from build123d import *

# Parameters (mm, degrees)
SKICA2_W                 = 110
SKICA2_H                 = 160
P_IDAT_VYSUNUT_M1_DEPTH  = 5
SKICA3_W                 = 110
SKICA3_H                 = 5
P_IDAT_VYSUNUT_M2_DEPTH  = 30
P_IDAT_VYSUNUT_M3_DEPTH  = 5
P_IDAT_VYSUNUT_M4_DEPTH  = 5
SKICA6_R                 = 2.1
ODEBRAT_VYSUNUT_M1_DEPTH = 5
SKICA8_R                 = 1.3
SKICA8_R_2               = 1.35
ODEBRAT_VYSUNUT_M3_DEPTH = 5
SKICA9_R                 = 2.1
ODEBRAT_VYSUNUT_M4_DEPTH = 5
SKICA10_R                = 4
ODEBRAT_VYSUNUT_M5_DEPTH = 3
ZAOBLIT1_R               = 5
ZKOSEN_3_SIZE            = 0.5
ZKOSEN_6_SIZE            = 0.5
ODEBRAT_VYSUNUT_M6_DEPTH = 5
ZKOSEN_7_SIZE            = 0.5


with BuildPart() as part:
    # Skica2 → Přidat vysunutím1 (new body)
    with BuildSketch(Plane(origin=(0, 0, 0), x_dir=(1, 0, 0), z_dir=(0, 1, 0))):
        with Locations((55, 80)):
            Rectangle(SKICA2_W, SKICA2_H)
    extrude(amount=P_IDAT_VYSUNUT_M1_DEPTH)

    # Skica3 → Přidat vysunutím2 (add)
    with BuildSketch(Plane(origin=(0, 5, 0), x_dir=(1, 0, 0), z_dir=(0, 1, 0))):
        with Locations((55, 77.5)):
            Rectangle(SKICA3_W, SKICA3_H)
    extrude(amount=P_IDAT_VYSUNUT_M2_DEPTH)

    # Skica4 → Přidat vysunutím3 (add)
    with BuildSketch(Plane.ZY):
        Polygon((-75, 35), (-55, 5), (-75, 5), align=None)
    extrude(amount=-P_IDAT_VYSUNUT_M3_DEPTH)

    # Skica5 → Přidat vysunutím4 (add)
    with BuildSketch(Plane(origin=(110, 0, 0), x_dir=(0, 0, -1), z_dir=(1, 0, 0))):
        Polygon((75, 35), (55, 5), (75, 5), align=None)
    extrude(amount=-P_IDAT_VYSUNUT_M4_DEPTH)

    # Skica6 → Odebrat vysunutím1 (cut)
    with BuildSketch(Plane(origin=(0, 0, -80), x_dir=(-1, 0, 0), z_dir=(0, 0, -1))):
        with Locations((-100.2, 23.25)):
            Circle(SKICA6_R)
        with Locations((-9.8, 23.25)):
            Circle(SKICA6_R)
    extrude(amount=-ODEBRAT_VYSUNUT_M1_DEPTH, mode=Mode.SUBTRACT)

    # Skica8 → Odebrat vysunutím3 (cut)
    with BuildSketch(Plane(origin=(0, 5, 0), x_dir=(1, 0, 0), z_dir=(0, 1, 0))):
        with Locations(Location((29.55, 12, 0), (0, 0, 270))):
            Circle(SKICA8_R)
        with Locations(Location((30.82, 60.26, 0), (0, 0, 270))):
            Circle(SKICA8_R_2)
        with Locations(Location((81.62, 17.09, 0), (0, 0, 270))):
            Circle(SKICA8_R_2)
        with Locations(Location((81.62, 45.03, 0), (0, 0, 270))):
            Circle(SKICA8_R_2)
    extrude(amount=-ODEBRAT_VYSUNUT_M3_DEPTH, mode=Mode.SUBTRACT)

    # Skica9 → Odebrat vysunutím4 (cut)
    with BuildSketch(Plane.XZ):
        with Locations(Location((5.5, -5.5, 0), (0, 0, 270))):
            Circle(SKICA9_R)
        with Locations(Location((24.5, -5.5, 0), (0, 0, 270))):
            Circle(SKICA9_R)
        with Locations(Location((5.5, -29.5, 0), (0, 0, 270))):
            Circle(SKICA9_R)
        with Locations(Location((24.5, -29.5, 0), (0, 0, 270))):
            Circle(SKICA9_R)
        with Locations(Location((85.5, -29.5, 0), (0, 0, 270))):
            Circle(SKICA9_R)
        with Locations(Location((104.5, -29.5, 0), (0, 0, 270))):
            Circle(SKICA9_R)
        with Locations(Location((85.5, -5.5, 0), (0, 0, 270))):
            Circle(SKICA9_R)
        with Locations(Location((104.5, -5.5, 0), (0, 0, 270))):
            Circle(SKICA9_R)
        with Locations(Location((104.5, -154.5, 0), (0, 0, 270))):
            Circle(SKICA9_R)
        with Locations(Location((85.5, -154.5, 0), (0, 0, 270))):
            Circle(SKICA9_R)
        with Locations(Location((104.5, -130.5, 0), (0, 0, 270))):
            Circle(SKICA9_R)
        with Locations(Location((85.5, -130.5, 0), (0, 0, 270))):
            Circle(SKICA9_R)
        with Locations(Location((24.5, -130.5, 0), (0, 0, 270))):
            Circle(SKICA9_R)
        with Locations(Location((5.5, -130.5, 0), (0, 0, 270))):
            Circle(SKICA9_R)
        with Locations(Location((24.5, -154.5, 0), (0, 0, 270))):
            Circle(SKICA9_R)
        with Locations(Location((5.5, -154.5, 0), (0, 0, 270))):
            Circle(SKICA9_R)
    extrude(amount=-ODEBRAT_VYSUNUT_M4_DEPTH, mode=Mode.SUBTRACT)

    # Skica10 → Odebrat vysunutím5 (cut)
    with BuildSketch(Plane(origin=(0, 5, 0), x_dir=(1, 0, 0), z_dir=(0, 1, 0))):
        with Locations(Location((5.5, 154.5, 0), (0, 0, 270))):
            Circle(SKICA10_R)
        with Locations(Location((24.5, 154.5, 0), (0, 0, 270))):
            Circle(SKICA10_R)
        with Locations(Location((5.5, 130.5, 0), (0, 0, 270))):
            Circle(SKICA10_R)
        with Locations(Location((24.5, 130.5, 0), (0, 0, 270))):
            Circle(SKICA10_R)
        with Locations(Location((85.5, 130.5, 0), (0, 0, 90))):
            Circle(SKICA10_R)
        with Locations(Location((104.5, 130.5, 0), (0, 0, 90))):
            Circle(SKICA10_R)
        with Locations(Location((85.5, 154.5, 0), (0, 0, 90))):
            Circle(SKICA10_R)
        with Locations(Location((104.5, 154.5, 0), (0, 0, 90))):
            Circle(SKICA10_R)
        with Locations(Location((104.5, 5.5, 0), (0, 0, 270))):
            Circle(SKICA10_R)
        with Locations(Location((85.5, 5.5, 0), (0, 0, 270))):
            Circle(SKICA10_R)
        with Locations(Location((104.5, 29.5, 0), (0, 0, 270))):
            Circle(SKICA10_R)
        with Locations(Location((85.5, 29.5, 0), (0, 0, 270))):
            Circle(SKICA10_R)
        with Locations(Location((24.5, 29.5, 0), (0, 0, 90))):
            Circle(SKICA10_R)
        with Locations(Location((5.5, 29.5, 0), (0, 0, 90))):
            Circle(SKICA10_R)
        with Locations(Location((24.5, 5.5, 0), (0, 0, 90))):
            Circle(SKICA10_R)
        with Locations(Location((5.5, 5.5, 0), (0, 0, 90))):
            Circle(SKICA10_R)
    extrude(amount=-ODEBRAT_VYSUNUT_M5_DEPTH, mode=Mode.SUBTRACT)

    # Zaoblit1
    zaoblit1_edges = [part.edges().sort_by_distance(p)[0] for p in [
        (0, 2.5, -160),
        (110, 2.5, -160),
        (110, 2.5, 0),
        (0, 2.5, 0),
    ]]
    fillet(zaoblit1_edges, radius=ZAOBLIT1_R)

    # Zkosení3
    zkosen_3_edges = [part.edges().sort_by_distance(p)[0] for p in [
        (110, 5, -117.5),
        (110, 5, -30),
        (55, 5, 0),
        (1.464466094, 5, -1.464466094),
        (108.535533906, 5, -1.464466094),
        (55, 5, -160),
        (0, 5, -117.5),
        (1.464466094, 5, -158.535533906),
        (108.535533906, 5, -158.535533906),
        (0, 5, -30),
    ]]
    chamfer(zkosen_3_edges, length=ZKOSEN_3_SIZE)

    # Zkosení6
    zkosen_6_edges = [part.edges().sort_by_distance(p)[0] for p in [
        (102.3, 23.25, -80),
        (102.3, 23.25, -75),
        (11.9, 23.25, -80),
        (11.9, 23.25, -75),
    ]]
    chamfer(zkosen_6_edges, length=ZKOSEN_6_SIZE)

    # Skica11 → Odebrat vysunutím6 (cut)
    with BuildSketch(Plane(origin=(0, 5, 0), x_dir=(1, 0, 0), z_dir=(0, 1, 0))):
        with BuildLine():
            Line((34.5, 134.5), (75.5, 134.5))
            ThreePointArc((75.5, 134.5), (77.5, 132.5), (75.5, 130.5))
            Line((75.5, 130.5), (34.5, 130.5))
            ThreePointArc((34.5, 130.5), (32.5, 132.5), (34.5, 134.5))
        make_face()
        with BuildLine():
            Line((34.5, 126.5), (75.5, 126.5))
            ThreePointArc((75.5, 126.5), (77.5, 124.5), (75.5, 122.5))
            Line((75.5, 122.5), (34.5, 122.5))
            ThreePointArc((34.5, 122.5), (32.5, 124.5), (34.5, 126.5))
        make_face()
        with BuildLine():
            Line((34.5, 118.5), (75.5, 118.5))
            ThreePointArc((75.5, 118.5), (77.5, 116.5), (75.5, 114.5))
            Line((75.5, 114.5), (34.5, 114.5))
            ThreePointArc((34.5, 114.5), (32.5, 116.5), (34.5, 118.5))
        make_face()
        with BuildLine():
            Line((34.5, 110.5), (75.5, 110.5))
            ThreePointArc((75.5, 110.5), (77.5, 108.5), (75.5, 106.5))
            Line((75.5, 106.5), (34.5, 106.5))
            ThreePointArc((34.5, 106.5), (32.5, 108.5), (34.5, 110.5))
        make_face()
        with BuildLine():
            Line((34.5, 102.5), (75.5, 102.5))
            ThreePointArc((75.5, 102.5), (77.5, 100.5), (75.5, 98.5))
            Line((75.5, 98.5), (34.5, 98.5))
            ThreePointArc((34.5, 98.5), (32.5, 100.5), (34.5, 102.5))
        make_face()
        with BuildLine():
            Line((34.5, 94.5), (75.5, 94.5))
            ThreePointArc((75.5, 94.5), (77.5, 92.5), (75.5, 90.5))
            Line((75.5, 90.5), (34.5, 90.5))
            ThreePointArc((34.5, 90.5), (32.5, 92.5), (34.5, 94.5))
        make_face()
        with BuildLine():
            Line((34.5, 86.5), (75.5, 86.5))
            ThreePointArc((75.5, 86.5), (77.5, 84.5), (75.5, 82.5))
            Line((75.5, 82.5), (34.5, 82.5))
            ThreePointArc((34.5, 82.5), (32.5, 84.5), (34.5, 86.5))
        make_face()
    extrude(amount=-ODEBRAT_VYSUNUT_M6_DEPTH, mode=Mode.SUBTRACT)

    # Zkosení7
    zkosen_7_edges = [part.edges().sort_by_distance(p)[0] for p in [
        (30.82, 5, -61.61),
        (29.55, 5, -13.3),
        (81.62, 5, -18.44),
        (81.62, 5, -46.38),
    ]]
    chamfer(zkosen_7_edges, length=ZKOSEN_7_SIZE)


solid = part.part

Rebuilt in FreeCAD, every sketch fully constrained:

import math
import FreeCAD as App
import Part
import Sketcher

V = App.Vector
Q = App.Units.Quantity


def edges_at(feature, points):
    """Names of the edges that pass closest to the given points."""
    edges = feature.Shape.Edges
    near = lambda p: min(range(len(edges)), key=lambda i: edges[i].distToShape(Part.Vertex(*p))[0])
    return sorted({f"Edge{near(p) + 1}" for p in points})

doc = App.newDocument("Part")
body = doc.addObject("PartDesign::Body", "Body")

# Sketch on XZ plane
sketch1 = doc.addObject("Sketcher::SketchObject", "Sketch")
body.addObject(sketch1)
sketch1.AttachmentSupport = (doc.XZ_Plane, [""])
sketch1.MapMode = "FlatFace"
sketch1.addGeometry([
    Part.LineSegment(V(0, -160, 0), V(0, 0, 0)),
    Part.LineSegment(V(0, 0, 0), V(110, 0, 0)),
    Part.LineSegment(V(110, 0, 0), V(110, -160, 0)),
    Part.LineSegment(V(110, -160, 0), V(0, -160, 0)),
], False)
sketch1.addConstraint([
    Sketcher.Constraint("Coincident", 0, 2, 1, 1),
    Sketcher.Constraint("Coincident", 1, 2, 2, 1),
    Sketcher.Constraint("Coincident", 2, 2, 3, 1),
    Sketcher.Constraint("Coincident", 3, 2, 0, 1),
    Sketcher.Constraint("Vertical", 0),
    Sketcher.Constraint("Horizontal", 1),
    Sketcher.Constraint("Vertical", 2),
    Sketcher.Constraint("Horizontal", 3),
    Sketcher.Constraint("Coincident", 0, 2, -1, 1),
    Sketcher.Constraint("DistanceX", 1, 1, 1, 2, Q("110 mm")),
    Sketcher.Constraint("DistanceY", 0, 1, 0, 2, Q("160 mm")),
])
pad1 = doc.addObject("PartDesign::Pad", "Pad")
body.addObject(pad1)
pad1.Profile = sketch1
pad1.Length = 5
pad1.Reversed = True

# Sketch on XZ plane
sketch2 = doc.addObject("Sketcher::SketchObject", "Sketch001")
body.addObject(sketch2)
sketch2.AttachmentSupport = (doc.XZ_Plane, [""])
sketch2.MapMode = "FlatFace"
sketch2.AttachmentOffset = App.Placement(V(0, 0, -5), App.Rotation())
sketch2.addGeometry([
    Part.LineSegment(V(0, -80, 0), V(0, -75, 0)),
    Part.LineSegment(V(0, -75, 0), V(110, -75, 0)),
    Part.LineSegment(V(110, -75, 0), V(110, -80, 0)),
    Part.LineSegment(V(110, -80, 0), V(0, -80, 0)),
], False)
sketch2.addConstraint([
    Sketcher.Constraint("Coincident", 0, 2, 1, 1),
    Sketcher.Constraint("Coincident", 1, 2, 2, 1),
    Sketcher.Constraint("Coincident", 2, 2, 3, 1),
    Sketcher.Constraint("Coincident", 3, 2, 0, 1),
    Sketcher.Constraint("Vertical", 0),
    Sketcher.Constraint("Horizontal", 1),
    Sketcher.Constraint("Vertical", 2),
    Sketcher.Constraint("Horizontal", 3),
    Sketcher.Constraint("PointOnObject", 0, 2, -2),
    Sketcher.Constraint("DistanceX", 1, 1, 1, 2, Q("110 mm")),
    Sketcher.Constraint("DistanceY", 0, 1, 0, 2, Q("5 mm")),
    Sketcher.Constraint("DistanceY", 0, 2, -1, 1, Q("75 mm")),
])
pad2 = doc.addObject("PartDesign::Pad", "Pad001")
body.addObject(pad2)
pad2.Profile = sketch2
pad2.Length = 30
pad2.Reversed = True

# Sketch on YZ plane
sketch3 = doc.addObject("Sketcher::SketchObject", "Sketch002")
body.addObject(sketch3)
sketch3.AttachmentSupport = (doc.YZ_Plane, [""])
sketch3.MapMode = "FlatFace"
sketch3.addGeometry([
    Part.LineSegment(V(5, -55, 0), V(35, -75, 0)),
    Part.LineSegment(V(35, -75, 0), V(5, -75, 0)),
    Part.LineSegment(V(5, -75, 0), V(5, -55, 0)),
], False)
sketch3.addConstraint([
    Sketcher.Constraint("Coincident", 0, 2, 1, 1),
    Sketcher.Constraint("Coincident", 1, 2, 2, 1),
    Sketcher.Constraint("Coincident", 2, 2, 0, 1),
    Sketcher.Constraint("Horizontal", 1),
    Sketcher.Constraint("Vertical", 2),
    Sketcher.Constraint("DistanceX", 1, 2, 1, 1, Q("30 mm")),
    Sketcher.Constraint("DistanceY", 2, 1, 2, 2, Q("20 mm")),
    Sketcher.Constraint("DistanceX", -1, 1, 0, 2, Q("35 mm")),
    Sketcher.Constraint("DistanceY", 0, 2, -1, 1, Q("75 mm")),
])
pad3 = doc.addObject("PartDesign::Pad", "Pad002")
body.addObject(pad3)
pad3.Profile = sketch3
pad3.Length = 5

# Sketch on YZ plane
sketch4 = doc.addObject("Sketcher::SketchObject", "Sketch003")
body.addObject(sketch4)
sketch4.AttachmentSupport = (doc.YZ_Plane, [""])
sketch4.MapMode = "FlatFace"
sketch4.AttachmentOffset = App.Placement(V(0, 0, 110), App.Rotation())
sketch4.addGeometry([
    Part.LineSegment(V(35, -75, 0), V(5, -55, 0)),
    Part.LineSegment(V(5, -55, 0), V(5, -75, 0)),
    Part.LineSegment(V(5, -75, 0), V(35, -75, 0)),
], False)
sketch4.addConstraint([
    Sketcher.Constraint("Coincident", 0, 2, 1, 1),
    Sketcher.Constraint("Coincident", 1, 2, 2, 1),
    Sketcher.Constraint("Coincident", 2, 2, 0, 1),
    Sketcher.Constraint("Vertical", 1),
    Sketcher.Constraint("Horizontal", 2),
    Sketcher.Constraint("DistanceX", 2, 1, 2, 2, Q("30 mm")),
    Sketcher.Constraint("DistanceY", 1, 2, 1, 1, Q("20 mm")),
    Sketcher.Constraint("DistanceX", -1, 1, 0, 2, Q("5 mm")),
    Sketcher.Constraint("DistanceY", 0, 2, -1, 1, Q("55 mm")),
])
pad4 = doc.addObject("PartDesign::Pad", "Pad003")
body.addObject(pad4)
pad4.Profile = sketch4
pad4.Length = 5
pad4.Reversed = True

# Sketch on XY plane
sketch5 = doc.addObject("Sketcher::SketchObject", "Sketch004")
body.addObject(sketch5)
sketch5.AttachmentSupport = (doc.XY_Plane, [""])
sketch5.MapMode = "FlatFace"
sketch5.AttachmentOffset = App.Placement(V(0, 0, -80), App.Rotation())
sketch5.addGeometry([
    Part.Circle(V(100.2, 23.2, 0), V(0, 0, 1), 2.1),
    Part.Circle(V(9.8, 23.2, 0), V(0, 0, 1), 2.1),
], False)
sketch5.addConstraint([
    Sketcher.Constraint("Equal", 0, 1),
    Sketcher.Constraint("Horizontal", 0, 3, 1, 3),
    Sketcher.Constraint("Diameter", 0, Q("4.2 mm")),
    Sketcher.Constraint("DistanceX", -1, 1, 0, 3, Q("100.2 mm")),
    Sketcher.Constraint("DistanceX", -1, 1, 1, 3, Q("9.8 mm")),
    Sketcher.Constraint("DistanceY", -1, 1, 0, 3, Q("23.25 mm")),
])
pocket1 = doc.addObject("PartDesign::Pocket", "Pocket")
body.addObject(pocket1)
pocket1.Profile = sketch5
pocket1.Length = 5
pocket1.Reversed = True

# Sketch on XZ plane
sketch6 = doc.addObject("Sketcher::SketchObject", "Sketch005")
body.addObject(sketch6)
sketch6.AttachmentSupport = (doc.XZ_Plane, [""])
sketch6.MapMode = "FlatFace"
sketch6.AttachmentOffset = App.Placement(V(0, 0, -5), App.Rotation())
sketch6.addGeometry([
    Part.Circle(V(29.6, -12, 0), V(0, 0, 1), 1.3),
    Part.Circle(V(30.8, -60.3, 0), V(0, 0, 1), 1.4),
    Part.Circle(V(81.6, -17.1, 0), V(0, 0, 1), 1.4),
    Part.Circle(V(81.6, -45, 0), V(0, 0, 1), 1.4),
], False)
sketch6.addConstraint([
    Sketcher.Constraint("Equal", 1, 2),
    Sketcher.Constraint("Equal", 2, 3),
    Sketcher.Constraint("Vertical", 2, 3, 3, 3),
    Sketcher.Constraint("Diameter", 0, Q("2.6 mm")),
    Sketcher.Constraint("Diameter", 1, Q("2.7 mm")),
    Sketcher.Constraint("DistanceY", 0, 3, -1, 1, Q("12 mm")),
    Sketcher.Constraint("DistanceX", 1, 3, 2, 3, Q("50.8 mm")),
    Sketcher.Constraint("DistanceX", -1, 1, 0, 3, Q("29.55 mm")),
    Sketcher.Constraint("DistanceX", -1, 1, 1, 3, Q("30.82 mm")),
    Sketcher.Constraint("DistanceY", 1, 3, -1, 1, Q("60.26 mm")),
    Sketcher.Constraint("DistanceY", 2, 3, -1, 1, Q("17.09 mm")),
    Sketcher.Constraint("DistanceY", 3, 3, -1, 1, Q("45.03 mm")),
])
pocket2 = doc.addObject("PartDesign::Pocket", "Pocket001")
body.addObject(pocket2)
pocket2.Profile = sketch6
pocket2.Length = 5
pocket2.Reversed = True

# Sketch on XZ plane
sketch7 = doc.addObject("Sketcher::SketchObject", "Sketch006")
body.addObject(sketch7)
sketch7.AttachmentSupport = (doc.XZ_Plane, [""])
sketch7.MapMode = "FlatFace"
sketch7.addGeometry([
    Part.Circle(V(5.5, -5.5, 0), V(0, 0, 1), 2.1),  # 0
    Part.Circle(V(24.5, -5.5, 0), V(0, 0, 1), 2.1),  # 1
    Part.Circle(V(5.5, -29.5, 0), V(0, 0, 1), 2.1),  # 2
    Part.Circle(V(24.5, -29.5, 0), V(0, 0, 1), 2.1),  # 3
    Part.Circle(V(85.5, -29.5, 0), V(0, 0, 1), 2.1),  # 4
    Part.Circle(V(104.5, -29.5, 0), V(0, 0, 1), 2.1),  # 5
    Part.Circle(V(85.5, -5.5, 0), V(0, 0, 1), 2.1),  # 6
    Part.Circle(V(104.5, -5.5, 0), V(0, 0, 1), 2.1),  # 7
    Part.Circle(V(104.5, -154.5, 0), V(0, 0, 1), 2.1),  # 8
    Part.Circle(V(85.5, -154.5, 0), V(0, 0, 1), 2.1),  # 9
    Part.Circle(V(104.5, -130.5, 0), V(0, 0, 1), 2.1),  # 10
    Part.Circle(V(85.5, -130.5, 0), V(0, 0, 1), 2.1),  # 11
    Part.Circle(V(24.5, -130.5, 0), V(0, 0, 1), 2.1),  # 12
    Part.Circle(V(5.5, -130.5, 0), V(0, 0, 1), 2.1),  # 13
    Part.Circle(V(24.5, -154.5, 0), V(0, 0, 1), 2.1),  # 14
    Part.Circle(V(5.5, -154.5, 0), V(0, 0, 1), 2.1),  # 15
], False)
sketch7.addConstraint([
    Sketcher.Constraint("Equal", 0, 1),
    Sketcher.Constraint("Equal", 1, 2),
    Sketcher.Constraint("Equal", 2, 3),
    Sketcher.Constraint("Equal", 3, 4),
    Sketcher.Constraint("Equal", 4, 5),
    Sketcher.Constraint("Equal", 5, 6),
    Sketcher.Constraint("Equal", 6, 7),
    Sketcher.Constraint("Equal", 7, 8),
    Sketcher.Constraint("Equal", 8, 9),
    Sketcher.Constraint("Equal", 9, 10),
    Sketcher.Constraint("Equal", 10, 11),
    Sketcher.Constraint("Equal", 11, 12),
    Sketcher.Constraint("Equal", 12, 13),
    Sketcher.Constraint("Equal", 13, 14),
    Sketcher.Constraint("Equal", 14, 15),
    Sketcher.Constraint("Horizontal", 0, 3, 1, 3),
    Sketcher.Constraint("Horizontal", 2, 3, 3, 3),
    Sketcher.Constraint("Horizontal", 3, 3, 4, 3),
    Sketcher.Constraint("Horizontal", 4, 3, 5, 3),
    Sketcher.Constraint("Horizontal", 1, 3, 6, 3),
    Sketcher.Constraint("Horizontal", 6, 3, 7, 3),
    Sketcher.Constraint("Horizontal", 8, 3, 9, 3),
    Sketcher.Constraint("Horizontal", 10, 3, 11, 3),
    Sketcher.Constraint("Horizontal", 11, 3, 12, 3),
    Sketcher.Constraint("Horizontal", 12, 3, 13, 3),
    Sketcher.Constraint("Horizontal", 9, 3, 14, 3),
    Sketcher.Constraint("Horizontal", 14, 3, 15, 3),
    Sketcher.Constraint("Vertical", 0, 3, 2, 3),
    Sketcher.Constraint("Vertical", 1, 3, 3, 3),
    Sketcher.Constraint("Vertical", 4, 3, 6, 3),
    Sketcher.Constraint("Vertical", 5, 3, 7, 3),
    Sketcher.Constraint("Vertical", 7, 3, 8, 3),
    Sketcher.Constraint("Vertical", 6, 3, 9, 3),
    Sketcher.Constraint("Vertical", 8, 3, 10, 3),
    Sketcher.Constraint("Vertical", 9, 3, 11, 3),
    Sketcher.Constraint("Vertical", 3, 3, 12, 3),
    Sketcher.Constraint("Vertical", 2, 3, 13, 3),
    Sketcher.Constraint("Vertical", 12, 3, 14, 3),
    Sketcher.Constraint("Vertical", 13, 3, 15, 3),
    Sketcher.Constraint("Diameter", 0, Q("4.2 mm")),
    Sketcher.Constraint("DistanceX", 0, 3, 1, 3, Q("19 mm")),
    Sketcher.Constraint("DistanceY", 2, 3, 0, 3, Q("24 mm")),
    Sketcher.Constraint("DistanceX", 3, 3, 4, 3, Q("61 mm")),
    Sketcher.Constraint("DistanceX", 4, 3, 5, 3, Q("19 mm")),
    Sketcher.Constraint("DistanceY", 8, 3, 5, 3, Q("125 mm")),
    Sketcher.Constraint("DistanceY", 8, 3, 10, 3, Q("24 mm")),
    Sketcher.Constraint("DistanceX", -1, 1, 0, 3, Q("5.5 mm")),
    Sketcher.Constraint("DistanceY", 0, 3, -1, 1, Q("5.5 mm")),
])
pocket3 = doc.addObject("PartDesign::Pocket", "Pocket002")
body.addObject(pocket3)
pocket3.Profile = sketch7
pocket3.Length = 5

# Sketch on XZ plane
sketch8 = doc.addObject("Sketcher::SketchObject", "Sketch007")
body.addObject(sketch8)
sketch8.AttachmentSupport = (doc.XZ_Plane, [""])
sketch8.MapMode = "FlatFace"
sketch8.AttachmentOffset = App.Placement(V(0, 0, -5), App.Rotation())
sketch8.addGeometry([
    Part.Circle(V(5.5, -154.5, 0), V(0, 0, 1), 4),  # 0
    Part.Circle(V(24.5, -154.5, 0), V(0, 0, 1), 4),  # 1
    Part.Circle(V(5.5, -130.5, 0), V(0, 0, 1), 4),  # 2
    Part.Circle(V(24.5, -130.5, 0), V(0, 0, 1), 4),  # 3
    Part.Circle(V(85.5, -130.5, 0), V(0, 0, 1), 4),  # 4
    Part.Circle(V(104.5, -130.5, 0), V(0, 0, 1), 4),  # 5
    Part.Circle(V(85.5, -154.5, 0), V(0, 0, 1), 4),  # 6
    Part.Circle(V(104.5, -154.5, 0), V(0, 0, 1), 4),  # 7
    Part.Circle(V(104.5, -5.5, 0), V(0, 0, 1), 4),  # 8
    Part.Circle(V(85.5, -5.5, 0), V(0, 0, 1), 4),  # 9
    Part.Circle(V(104.5, -29.5, 0), V(0, 0, 1), 4),  # 10
    Part.Circle(V(85.5, -29.5, 0), V(0, 0, 1), 4),  # 11
    Part.Circle(V(24.5, -29.5, 0), V(0, 0, 1), 4),  # 12
    Part.Circle(V(5.5, -29.5, 0), V(0, 0, 1), 4),  # 13
    Part.Circle(V(24.5, -5.5, 0), V(0, 0, 1), 4),  # 14
    Part.Circle(V(5.5, -5.5, 0), V(0, 0, 1), 4),  # 15
], False)
sketch8.addConstraint([
    Sketcher.Constraint("Equal", 0, 1),
    Sketcher.Constraint("Equal", 1, 2),
    Sketcher.Constraint("Equal", 2, 3),
    Sketcher.Constraint("Equal", 3, 4),
    Sketcher.Constraint("Equal", 4, 5),
    Sketcher.Constraint("Equal", 5, 6),
    Sketcher.Constraint("Equal", 6, 7),
    Sketcher.Constraint("Equal", 7, 8),
    Sketcher.Constraint("Equal", 8, 9),
    Sketcher.Constraint("Equal", 9, 10),
    Sketcher.Constraint("Equal", 10, 11),
    Sketcher.Constraint("Equal", 11, 12),
    Sketcher.Constraint("Equal", 12, 13),
    Sketcher.Constraint("Equal", 13, 14),
    Sketcher.Constraint("Equal", 14, 15),
    Sketcher.Constraint("Horizontal", 0, 3, 1, 3),
    Sketcher.Constraint("Horizontal", 2, 3, 3, 3),
    Sketcher.Constraint("Horizontal", 3, 3, 4, 3),
    Sketcher.Constraint("Horizontal", 4, 3, 5, 3),
    Sketcher.Constraint("Horizontal", 1, 3, 6, 3),
    Sketcher.Constraint("Horizontal", 6, 3, 7, 3),
    Sketcher.Constraint("Horizontal", 8, 3, 9, 3),
    Sketcher.Constraint("Horizontal", 10, 3, 11, 3),
    Sketcher.Constraint("Horizontal", 11, 3, 12, 3),
    Sketcher.Constraint("Horizontal", 12, 3, 13, 3),
    Sketcher.Constraint("Horizontal", 9, 3, 14, 3),
    Sketcher.Constraint("Horizontal", 14, 3, 15, 3),
    Sketcher.Constraint("Vertical", 0, 3, 2, 3),
    Sketcher.Constraint("Vertical", 1, 3, 3, 3),
    Sketcher.Constraint("Vertical", 4, 3, 6, 3),
    Sketcher.Constraint("Vertical", 5, 3, 7, 3),
    Sketcher.Constraint("Vertical", 7, 3, 8, 3),
    Sketcher.Constraint("Vertical", 6, 3, 9, 3),
    Sketcher.Constraint("Vertical", 8, 3, 10, 3),
    Sketcher.Constraint("Vertical", 9, 3, 11, 3),
    Sketcher.Constraint("Vertical", 3, 3, 12, 3),
    Sketcher.Constraint("Vertical", 2, 3, 13, 3),
    Sketcher.Constraint("Vertical", 12, 3, 14, 3),
    Sketcher.Constraint("Vertical", 13, 3, 15, 3),
    Sketcher.Constraint("Diameter", 0, Q("8 mm")),
    Sketcher.Constraint("DistanceX", 0, 3, 1, 3, Q("19 mm")),
    Sketcher.Constraint("DistanceY", 0, 3, 2, 3, Q("24 mm")),
    Sketcher.Constraint("DistanceX", 3, 3, 4, 3, Q("61 mm")),
    Sketcher.Constraint("DistanceX", 4, 3, 5, 3, Q("19 mm")),
    Sketcher.Constraint("DistanceY", 5, 3, 8, 3, Q("125 mm")),
    Sketcher.Constraint("DistanceY", 10, 3, 8, 3, Q("24 mm")),
    Sketcher.Constraint("DistanceX", -1, 1, 0, 3, Q("5.5 mm")),
    Sketcher.Constraint("DistanceY", 0, 3, -1, 1, Q("154.5 mm")),
])
pocket4 = doc.addObject("PartDesign::Pocket", "Pocket003")
body.addObject(pocket4)
pocket4.Profile = sketch8
pocket4.Length = 3
pocket4.Reversed = True
doc.recompute()

fillet = doc.addObject("PartDesign::Fillet", "Fillet")
body.addObject(fillet)
fillet.Base = (pocket4, edges_at(pocket4, [
    (0, 2.5, -160),
    (110, 2.5, -160),
    (110, 2.5, 0),
    (0, 2.5, 0),
]))
fillet.Radius = 5
doc.recompute()

chamfer = doc.addObject("PartDesign::Chamfer", "Chamfer")
body.addObject(chamfer)
chamfer.Base = (fillet, edges_at(fillet, [
    (110, 5, -117.5),
    (110, 5, -30),
    (55, 5, 0),
    (1.464, 5, -1.464),
    (108.536, 5, -1.464),
    (55, 5, -160),
    (0, 5, -117.5),
    (1.464, 5, -158.536),
    (108.536, 5, -158.536),
    (0, 5, -30),
]))
chamfer.Size = 0.5
doc.recompute()

chamfer2 = doc.addObject("PartDesign::Chamfer", "Chamfer001")
body.addObject(chamfer2)
chamfer2.Base = (chamfer, edges_at(chamfer, [
    (102.3, 23.25, -80),
    (102.3, 23.25, -75),
    (11.9, 23.25, -80),
    (11.9, 23.25, -75),
]))
chamfer2.Size = 0.5

# Sketch on XZ plane
sketch9 = doc.addObject("Sketcher::SketchObject", "Sketch008")
body.addObject(sketch9)
sketch9.AttachmentSupport = (doc.XZ_Plane, [""])
sketch9.MapMode = "FlatFace"
sketch9.AttachmentOffset = App.Placement(V(0, 0, -5), App.Rotation())
sketch9.addGeometry([
    Part.LineSegment(V(75.5, -134.5, 0), V(34.5, -134.5, 0)),  # 0
    Part.ArcOfCircle(Part.Circle(V(34.5, -132.5, 0), V(0, 0, 1), 2), math.radians(90), math.radians(270)),  # 1
    Part.LineSegment(V(34.5, -130.5, 0), V(75.5, -130.5, 0)),  # 2
    Part.ArcOfCircle(Part.Circle(V(75.5, -132.5, 0), V(0, 0, 1), 2), math.radians(-90), math.radians(90)),  # 3
    Part.LineSegment(V(75.5, -126.5, 0), V(34.5, -126.5, 0)),  # 4
    Part.ArcOfCircle(Part.Circle(V(34.5, -124.5, 0), V(0, 0, 1), 2), math.radians(90), math.radians(270)),  # 5
    Part.LineSegment(V(34.5, -122.5, 0), V(75.5, -122.5, 0)),  # 6
    Part.ArcOfCircle(Part.Circle(V(75.5, -124.5, 0), V(0, 0, 1), 2), math.radians(-90), math.radians(90)),  # 7
    Part.LineSegment(V(75.5, -118.5, 0), V(34.5, -118.5, 0)),  # 8
    Part.ArcOfCircle(Part.Circle(V(34.5, -116.5, 0), V(0, 0, 1), 2), math.radians(90), math.radians(270)),  # 9
    Part.LineSegment(V(34.5, -114.5, 0), V(75.5, -114.5, 0)),  # 10
    Part.ArcOfCircle(Part.Circle(V(75.5, -116.5, 0), V(0, 0, 1), 2), math.radians(-90), math.radians(90)),  # 11
    Part.LineSegment(V(75.5, -110.5, 0), V(34.5, -110.5, 0)),  # 12
    Part.ArcOfCircle(Part.Circle(V(34.5, -108.5, 0), V(0, 0, 1), 2), math.radians(90), math.radians(270)),  # 13
    Part.LineSegment(V(34.5, -106.5, 0), V(75.5, -106.5, 0)),  # 14
    Part.ArcOfCircle(Part.Circle(V(75.5, -108.5, 0), V(0, 0, 1), 2), math.radians(-90), math.radians(90)),  # 15
    Part.LineSegment(V(75.5, -102.5, 0), V(34.5, -102.5, 0)),  # 16
    Part.ArcOfCircle(Part.Circle(V(34.5, -100.5, 0), V(0, 0, 1), 2), math.radians(90), math.radians(270)),  # 17
    Part.LineSegment(V(34.5, -98.5, 0), V(75.5, -98.5, 0)),  # 18
    Part.ArcOfCircle(Part.Circle(V(75.5, -100.5, 0), V(0, 0, 1), 2), math.radians(-90), math.radians(90)),  # 19
    Part.LineSegment(V(75.5, -94.5, 0), V(34.5, -94.5, 0)),  # 20
    Part.ArcOfCircle(Part.Circle(V(34.5, -92.5, 0), V(0, 0, 1), 2), math.radians(90), math.radians(270)),  # 21
    Part.LineSegment(V(34.5, -90.5, 0), V(75.5, -90.5, 0)),  # 22
    Part.ArcOfCircle(Part.Circle(V(75.5, -92.5, 0), V(0, 0, 1), 2), math.radians(-90), math.radians(90)),  # 23
    Part.LineSegment(V(75.5, -86.5, 0), V(34.5, -86.5, 0)),  # 24
    Part.ArcOfCircle(Part.Circle(V(34.5, -84.5, 0), V(0, 0, 1), 2), math.radians(90), math.radians(270)),  # 25
    Part.LineSegment(V(34.5, -82.5, 0), V(75.5, -82.5, 0)),  # 26
    Part.ArcOfCircle(Part.Circle(V(75.5, -84.5, 0), V(0, 0, 1), 2), math.radians(-90), math.radians(90)),  # 27
], False)
sketch9.addConstraint([
    Sketcher.Constraint("Tangent", 0, 2, 1, 2),
    Sketcher.Constraint("Tangent", 1, 1, 2, 1),
    Sketcher.Constraint("Tangent", 2, 2, 3, 2),
    Sketcher.Constraint("Tangent", 3, 1, 0, 1),
    Sketcher.Constraint("Tangent", 4, 2, 5, 2),
    Sketcher.Constraint("Tangent", 5, 1, 6, 1),
    Sketcher.Constraint("Tangent", 6, 2, 7, 2),
    Sketcher.Constraint("Tangent", 7, 1, 4, 1),
    Sketcher.Constraint("Tangent", 8, 2, 9, 2),
    Sketcher.Constraint("Tangent", 9, 1, 10, 1),
    Sketcher.Constraint("Tangent", 10, 2, 11, 2),
    Sketcher.Constraint("Tangent", 11, 1, 8, 1),
    Sketcher.Constraint("Tangent", 12, 2, 13, 2),
    Sketcher.Constraint("Tangent", 13, 1, 14, 1),
    Sketcher.Constraint("Tangent", 14, 2, 15, 2),
    Sketcher.Constraint("Tangent", 15, 1, 12, 1),
    Sketcher.Constraint("Tangent", 16, 2, 17, 2),
    Sketcher.Constraint("Tangent", 17, 1, 18, 1),
    Sketcher.Constraint("Tangent", 18, 2, 19, 2),
    Sketcher.Constraint("Tangent", 19, 1, 16, 1),
    Sketcher.Constraint("Tangent", 20, 2, 21, 2),
    Sketcher.Constraint("Tangent", 21, 1, 22, 1),
    Sketcher.Constraint("Tangent", 22, 2, 23, 2),
    Sketcher.Constraint("Tangent", 23, 1, 20, 1),
    Sketcher.Constraint("Tangent", 24, 2, 25, 2),
    Sketcher.Constraint("Tangent", 25, 1, 26, 1),
    Sketcher.Constraint("Tangent", 26, 2, 27, 2),
    Sketcher.Constraint("Tangent", 27, 1, 24, 1),
    Sketcher.Constraint("Horizontal", 0),
    Sketcher.Constraint("Horizontal", 2),
    Sketcher.Constraint("Horizontal", 4),
    Sketcher.Constraint("Horizontal", 6),
    Sketcher.Constraint("Horizontal", 8),
    Sketcher.Constraint("Horizontal", 10),
    Sketcher.Constraint("Horizontal", 12),
    Sketcher.Constraint("Horizontal", 14),
    Sketcher.Constraint("Horizontal", 16),
    Sketcher.Constraint("Horizontal", 18),
    Sketcher.Constraint("Horizontal", 20),
    Sketcher.Constraint("Horizontal", 22),
    Sketcher.Constraint("Horizontal", 24),
    Sketcher.Constraint("Horizontal", 26),
    Sketcher.Constraint("Equal", 3, 5),
    Sketcher.Constraint("Equal", 7, 9),
    Sketcher.Constraint("Equal", 11, 13),
    Sketcher.Constraint("Equal", 15, 17),
    Sketcher.Constraint("Equal", 19, 21),
    Sketcher.Constraint("Equal", 23, 25),
    Sketcher.Constraint("Vertical", 1, 3, 5, 3),
    Sketcher.Constraint("Vertical", 3, 3, 7, 3),
    Sketcher.Constraint("Vertical", 5, 3, 9, 3),
    Sketcher.Constraint("Vertical", 7, 3, 11, 3),
    Sketcher.Constraint("Vertical", 9, 3, 13, 3),
    Sketcher.Constraint("Vertical", 11, 3, 15, 3),
    Sketcher.Constraint("Vertical", 13, 3, 17, 3),
    Sketcher.Constraint("Vertical", 15, 3, 19, 3),
    Sketcher.Constraint("Vertical", 17, 3, 21, 3),
    Sketcher.Constraint("Vertical", 19, 3, 23, 3),
    Sketcher.Constraint("Vertical", 21, 3, 25, 3),
    Sketcher.Constraint("Vertical", 23, 3, 27, 3),
    Sketcher.Constraint("Radius", 1, Q("2 mm")),
    Sketcher.Constraint("DistanceX", 0, 2, 0, 1, Q("41 mm")),
    Sketcher.Constraint("DistanceY", 1, 3, 5, 3, Q("8 mm")),
    Sketcher.Constraint("DistanceY", 5, 3, 9, 3, Q("8 mm")),
    Sketcher.Constraint("DistanceY", 9, 3, 13, 3, Q("8 mm")),
    Sketcher.Constraint("DistanceY", 13, 3, 17, 3, Q("8 mm")),
    Sketcher.Constraint("DistanceY", 17, 3, 21, 3, Q("8 mm")),
    Sketcher.Constraint("DistanceY", 21, 3, 25, 3, Q("8 mm")),
    Sketcher.Constraint("DistanceX", -1, 1, 1, 3, Q("34.5 mm")),
    Sketcher.Constraint("DistanceY", 1, 3, -1, 1, Q("132.5 mm")),
])
pocket5 = doc.addObject("PartDesign::Pocket", "Pocket004")
body.addObject(pocket5)
pocket5.Profile = sketch9
pocket5.Length = 5
pocket5.Reversed = True
doc.recompute()

chamfer3 = doc.addObject("PartDesign::Chamfer", "Chamfer002")
body.addObject(chamfer3)
chamfer3.Base = (pocket5, edges_at(pocket5, [
    (30.82, 5, -61.61),
    (29.55, 5, -13.3),
    (81.62, 5, -18.44),
    (81.62, 5, -46.38),
]))
chamfer3.Size = 0.5

doc.recompute()
